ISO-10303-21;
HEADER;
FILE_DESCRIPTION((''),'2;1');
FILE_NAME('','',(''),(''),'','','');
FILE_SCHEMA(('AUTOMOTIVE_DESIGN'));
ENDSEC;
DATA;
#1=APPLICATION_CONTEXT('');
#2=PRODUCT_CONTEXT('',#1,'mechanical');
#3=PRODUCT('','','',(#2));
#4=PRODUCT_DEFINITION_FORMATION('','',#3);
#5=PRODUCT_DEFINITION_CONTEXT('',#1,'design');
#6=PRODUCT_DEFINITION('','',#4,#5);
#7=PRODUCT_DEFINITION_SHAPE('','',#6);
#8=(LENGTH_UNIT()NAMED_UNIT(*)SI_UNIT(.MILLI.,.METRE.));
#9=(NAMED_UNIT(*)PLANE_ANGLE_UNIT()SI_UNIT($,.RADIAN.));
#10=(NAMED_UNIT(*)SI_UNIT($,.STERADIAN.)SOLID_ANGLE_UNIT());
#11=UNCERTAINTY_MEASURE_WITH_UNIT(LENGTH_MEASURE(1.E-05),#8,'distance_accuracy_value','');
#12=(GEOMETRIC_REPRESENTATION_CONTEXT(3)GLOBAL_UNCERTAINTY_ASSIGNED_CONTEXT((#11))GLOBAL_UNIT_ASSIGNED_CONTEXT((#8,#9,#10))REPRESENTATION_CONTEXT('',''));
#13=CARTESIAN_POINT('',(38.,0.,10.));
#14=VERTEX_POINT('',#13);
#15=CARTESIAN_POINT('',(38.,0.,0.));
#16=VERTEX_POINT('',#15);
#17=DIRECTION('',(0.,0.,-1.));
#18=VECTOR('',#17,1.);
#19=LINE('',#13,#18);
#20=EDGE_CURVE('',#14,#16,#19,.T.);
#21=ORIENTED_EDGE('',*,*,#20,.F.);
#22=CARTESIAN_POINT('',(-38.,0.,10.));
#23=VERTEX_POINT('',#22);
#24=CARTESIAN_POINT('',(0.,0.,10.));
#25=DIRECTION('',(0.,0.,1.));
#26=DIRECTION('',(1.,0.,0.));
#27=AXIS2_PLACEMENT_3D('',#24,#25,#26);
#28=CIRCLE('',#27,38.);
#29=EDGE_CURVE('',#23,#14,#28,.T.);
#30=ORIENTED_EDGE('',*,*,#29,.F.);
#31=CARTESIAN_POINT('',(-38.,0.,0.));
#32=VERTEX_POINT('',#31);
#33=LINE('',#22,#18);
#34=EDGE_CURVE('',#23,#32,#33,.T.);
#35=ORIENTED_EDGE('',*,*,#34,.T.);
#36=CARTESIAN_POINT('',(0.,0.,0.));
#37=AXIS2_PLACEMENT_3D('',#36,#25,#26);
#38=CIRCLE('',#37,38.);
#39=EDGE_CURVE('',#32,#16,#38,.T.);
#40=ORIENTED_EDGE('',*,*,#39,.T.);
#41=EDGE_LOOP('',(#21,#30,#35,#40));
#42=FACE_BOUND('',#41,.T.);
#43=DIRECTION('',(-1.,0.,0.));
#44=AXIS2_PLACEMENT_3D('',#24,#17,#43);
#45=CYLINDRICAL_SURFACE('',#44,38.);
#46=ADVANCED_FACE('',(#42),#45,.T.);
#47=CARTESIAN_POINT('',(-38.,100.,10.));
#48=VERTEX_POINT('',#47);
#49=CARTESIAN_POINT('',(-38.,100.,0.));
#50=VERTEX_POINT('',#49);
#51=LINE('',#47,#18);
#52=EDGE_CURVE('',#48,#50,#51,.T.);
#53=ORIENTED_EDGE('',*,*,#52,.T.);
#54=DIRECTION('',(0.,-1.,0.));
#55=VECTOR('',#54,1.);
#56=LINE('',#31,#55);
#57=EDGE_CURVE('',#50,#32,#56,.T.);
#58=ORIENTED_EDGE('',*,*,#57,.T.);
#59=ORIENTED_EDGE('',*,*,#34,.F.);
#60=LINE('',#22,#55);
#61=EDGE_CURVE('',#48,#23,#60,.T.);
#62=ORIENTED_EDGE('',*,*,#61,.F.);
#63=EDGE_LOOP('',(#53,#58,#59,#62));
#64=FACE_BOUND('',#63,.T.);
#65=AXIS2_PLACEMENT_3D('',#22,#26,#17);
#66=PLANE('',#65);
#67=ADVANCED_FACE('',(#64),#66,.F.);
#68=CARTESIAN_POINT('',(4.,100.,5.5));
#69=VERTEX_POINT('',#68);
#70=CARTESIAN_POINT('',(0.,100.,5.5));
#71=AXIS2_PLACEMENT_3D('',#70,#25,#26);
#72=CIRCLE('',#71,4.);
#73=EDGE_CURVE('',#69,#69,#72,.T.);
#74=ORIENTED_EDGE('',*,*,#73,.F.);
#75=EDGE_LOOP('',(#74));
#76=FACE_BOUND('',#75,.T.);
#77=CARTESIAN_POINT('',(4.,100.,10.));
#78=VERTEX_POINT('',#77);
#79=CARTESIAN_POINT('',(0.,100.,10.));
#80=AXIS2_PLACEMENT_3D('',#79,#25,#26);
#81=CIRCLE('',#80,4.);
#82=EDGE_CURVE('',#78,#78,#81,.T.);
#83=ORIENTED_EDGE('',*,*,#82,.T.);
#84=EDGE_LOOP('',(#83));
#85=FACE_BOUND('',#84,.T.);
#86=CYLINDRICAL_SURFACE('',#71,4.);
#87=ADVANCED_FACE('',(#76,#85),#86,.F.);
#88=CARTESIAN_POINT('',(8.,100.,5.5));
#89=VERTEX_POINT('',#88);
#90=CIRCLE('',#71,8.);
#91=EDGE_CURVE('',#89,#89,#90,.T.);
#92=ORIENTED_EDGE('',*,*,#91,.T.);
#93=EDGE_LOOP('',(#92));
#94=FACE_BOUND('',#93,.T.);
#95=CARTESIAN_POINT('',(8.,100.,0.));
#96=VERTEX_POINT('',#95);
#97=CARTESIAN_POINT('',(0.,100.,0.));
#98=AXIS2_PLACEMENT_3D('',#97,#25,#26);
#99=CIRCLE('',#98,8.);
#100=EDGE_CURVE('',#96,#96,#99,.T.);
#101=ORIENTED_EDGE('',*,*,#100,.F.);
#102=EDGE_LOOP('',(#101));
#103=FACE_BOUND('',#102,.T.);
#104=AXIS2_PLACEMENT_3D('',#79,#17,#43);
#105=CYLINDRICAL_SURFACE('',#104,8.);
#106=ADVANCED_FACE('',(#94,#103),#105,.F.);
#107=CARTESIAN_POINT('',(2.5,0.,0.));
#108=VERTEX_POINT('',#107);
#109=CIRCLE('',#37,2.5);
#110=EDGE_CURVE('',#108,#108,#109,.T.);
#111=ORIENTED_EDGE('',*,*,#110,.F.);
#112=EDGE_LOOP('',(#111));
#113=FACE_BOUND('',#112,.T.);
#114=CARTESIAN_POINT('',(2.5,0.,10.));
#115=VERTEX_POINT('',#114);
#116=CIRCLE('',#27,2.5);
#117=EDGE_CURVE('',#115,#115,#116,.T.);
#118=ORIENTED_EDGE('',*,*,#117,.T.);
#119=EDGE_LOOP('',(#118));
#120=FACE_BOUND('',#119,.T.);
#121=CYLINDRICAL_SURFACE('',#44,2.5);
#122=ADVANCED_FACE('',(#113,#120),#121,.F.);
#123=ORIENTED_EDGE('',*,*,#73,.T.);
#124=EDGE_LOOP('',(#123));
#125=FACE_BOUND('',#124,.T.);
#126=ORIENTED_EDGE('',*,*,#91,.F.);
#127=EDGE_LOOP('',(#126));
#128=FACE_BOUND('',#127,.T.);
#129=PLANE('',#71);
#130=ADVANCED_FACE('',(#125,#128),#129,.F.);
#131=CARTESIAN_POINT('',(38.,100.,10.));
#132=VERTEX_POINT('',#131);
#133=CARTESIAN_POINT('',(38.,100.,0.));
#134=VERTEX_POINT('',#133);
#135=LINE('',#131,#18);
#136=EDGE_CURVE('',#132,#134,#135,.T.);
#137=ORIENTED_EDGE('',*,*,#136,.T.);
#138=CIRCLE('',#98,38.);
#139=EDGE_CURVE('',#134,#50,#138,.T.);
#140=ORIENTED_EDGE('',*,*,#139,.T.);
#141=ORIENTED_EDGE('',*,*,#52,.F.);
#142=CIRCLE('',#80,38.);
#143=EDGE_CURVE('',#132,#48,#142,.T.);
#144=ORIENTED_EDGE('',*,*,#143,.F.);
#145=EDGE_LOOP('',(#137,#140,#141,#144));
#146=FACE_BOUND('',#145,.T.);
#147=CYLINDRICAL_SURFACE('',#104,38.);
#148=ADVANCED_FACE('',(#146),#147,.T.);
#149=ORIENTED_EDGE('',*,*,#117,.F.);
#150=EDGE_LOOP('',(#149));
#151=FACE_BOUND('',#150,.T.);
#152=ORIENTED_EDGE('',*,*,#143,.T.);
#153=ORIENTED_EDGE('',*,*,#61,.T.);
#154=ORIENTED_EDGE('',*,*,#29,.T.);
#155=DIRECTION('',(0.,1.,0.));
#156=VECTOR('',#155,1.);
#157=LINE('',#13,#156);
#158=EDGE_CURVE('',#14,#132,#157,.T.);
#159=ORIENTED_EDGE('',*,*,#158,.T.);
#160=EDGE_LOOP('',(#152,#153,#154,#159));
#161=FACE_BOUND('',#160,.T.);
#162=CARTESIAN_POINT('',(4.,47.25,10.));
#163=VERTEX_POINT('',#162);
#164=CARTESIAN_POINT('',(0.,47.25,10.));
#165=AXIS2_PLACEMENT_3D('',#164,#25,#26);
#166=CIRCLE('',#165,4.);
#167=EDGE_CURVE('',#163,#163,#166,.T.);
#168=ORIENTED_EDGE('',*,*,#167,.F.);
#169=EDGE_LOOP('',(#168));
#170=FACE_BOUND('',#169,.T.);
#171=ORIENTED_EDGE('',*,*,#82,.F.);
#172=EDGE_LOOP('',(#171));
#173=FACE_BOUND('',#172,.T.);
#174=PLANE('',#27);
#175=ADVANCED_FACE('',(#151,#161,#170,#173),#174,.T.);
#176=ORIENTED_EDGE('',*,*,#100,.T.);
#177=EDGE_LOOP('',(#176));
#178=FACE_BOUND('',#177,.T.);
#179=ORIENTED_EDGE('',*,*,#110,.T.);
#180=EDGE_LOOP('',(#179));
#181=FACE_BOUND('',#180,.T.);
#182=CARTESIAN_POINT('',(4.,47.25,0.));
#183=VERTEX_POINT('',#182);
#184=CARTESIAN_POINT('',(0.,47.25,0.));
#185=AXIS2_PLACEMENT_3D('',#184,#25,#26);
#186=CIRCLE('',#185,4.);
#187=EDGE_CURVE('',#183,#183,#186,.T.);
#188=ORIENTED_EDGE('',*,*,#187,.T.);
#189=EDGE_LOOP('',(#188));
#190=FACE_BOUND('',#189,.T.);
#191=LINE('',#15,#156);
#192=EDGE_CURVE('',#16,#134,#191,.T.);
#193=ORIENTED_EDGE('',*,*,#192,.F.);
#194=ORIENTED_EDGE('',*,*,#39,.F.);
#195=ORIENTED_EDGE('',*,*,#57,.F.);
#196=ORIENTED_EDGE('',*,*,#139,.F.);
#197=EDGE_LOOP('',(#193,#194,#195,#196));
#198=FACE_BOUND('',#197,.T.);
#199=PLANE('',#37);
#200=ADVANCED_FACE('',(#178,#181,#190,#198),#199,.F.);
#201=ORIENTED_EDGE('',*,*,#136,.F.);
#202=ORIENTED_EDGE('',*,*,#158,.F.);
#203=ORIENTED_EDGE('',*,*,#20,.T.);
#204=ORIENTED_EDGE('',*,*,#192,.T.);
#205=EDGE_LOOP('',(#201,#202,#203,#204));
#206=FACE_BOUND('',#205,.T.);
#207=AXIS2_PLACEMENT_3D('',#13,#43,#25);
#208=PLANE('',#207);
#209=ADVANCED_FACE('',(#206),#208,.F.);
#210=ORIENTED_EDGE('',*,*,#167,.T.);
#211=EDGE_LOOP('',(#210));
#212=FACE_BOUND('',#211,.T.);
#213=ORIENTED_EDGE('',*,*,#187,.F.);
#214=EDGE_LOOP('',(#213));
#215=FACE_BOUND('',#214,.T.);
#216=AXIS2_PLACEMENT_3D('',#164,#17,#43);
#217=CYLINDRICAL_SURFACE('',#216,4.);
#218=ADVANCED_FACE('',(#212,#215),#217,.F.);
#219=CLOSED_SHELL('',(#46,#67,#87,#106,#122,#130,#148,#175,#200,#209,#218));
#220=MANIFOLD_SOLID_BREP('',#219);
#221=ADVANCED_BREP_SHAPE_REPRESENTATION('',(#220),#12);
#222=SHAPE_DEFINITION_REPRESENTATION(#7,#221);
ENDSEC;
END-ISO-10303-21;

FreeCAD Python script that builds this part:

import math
import FreeCAD as App
import Part
import Sketcher

V = App.Vector
Q = App.Units.Quantity

doc = App.newDocument("Part")
body = doc.addObject("PartDesign::Body", "Body")

# Sketch on XY plane
sketch1 = body.newObject("Sketcher::SketchObject", "Sketch")
sketch1.AttachmentSupport = (doc.getObject("XY_Plane"), [""])
sketch1.MapMode = "FlatFace"
sketch1.addGeometry([
    Part.LineSegment(V(-38, 100, 0), V(-38, 0, 0)),  # 0
    Part.ArcOfCircle(Part.Circle(V(0, 0, 0), V(0, 0, 1), 38), math.radians(180), math.radians(360)),  # 1
    Part.LineSegment(V(38, 0, 0), V(38, 100, 0)),  # 2
    Part.ArcOfCircle(Part.Circle(V(0, 100, 0), V(0, 0, 1), 38), math.radians(0), math.radians(180)),  # 3
    Part.Circle(V(0, 0, 0), V(0, 0, 1), 2.5),  # 4
    Part.Circle(V(0, 47.25, 0), V(0, 0, 1), 4),  # 5
    Part.Circle(V(0, 100, 0), V(0, 0, 1), 8),  # 6
], False)
sketch1.addConstraint([
    Sketcher.Constraint("Tangent", 0, 2, 1, 1),
    Sketcher.Constraint("Tangent", 1, 2, 2, 1),
    Sketcher.Constraint("Tangent", 2, 2, 3, 1),
    Sketcher.Constraint("Tangent", 3, 2, 0, 1),
    Sketcher.Constraint("Vertical", 0),
    Sketcher.Constraint("Vertical", 2),
    Sketcher.Constraint("Coincident", 1, 3, -1, 1),
    Sketcher.Constraint("Coincident", 4, 3, -1, 1),
    Sketcher.Constraint("Coincident", 6, 3, 3, 3),
    Sketcher.Constraint("PointOnObject", 5, 3, -2),
    Sketcher.Constraint("Diameter", 4, Q("5 mm")),
    Sketcher.Constraint("Diameter", 5, Q("8 mm")),
    Sketcher.Constraint("Diameter", 6, Q("16 mm")),
    Sketcher.Constraint("Radius", 1, Q("38 mm")),
    Sketcher.Constraint("DistanceY", 0, 2, 0, 1, Q("100 mm")),
    Sketcher.Constraint("DistanceY", -1, 1, 5, 3, Q("47.25 mm")),
])
pad1 = body.newObject("PartDesign::Pad", "Pad")
pad1.Profile = sketch1
pad1.Length = 10

# Sketch on XY plane
sketch2 = body.newObject("Sketcher::SketchObject", "Sketch001")
sketch2.AttachmentSupport = (doc.getObject("XY_Plane"), [""])
sketch2.MapMode = "FlatFace"
sketch2.AttachmentOffset = App.Placement(V(0, 0, 5.5), App.Rotation())
sketch2.addGeometry([
    Part.Circle(V(0, 100, 0), V(0, 0, 1), 8),
    Part.Circle(V(0, 100, 0), V(0, 0, 1), 4),
], False)
sketch2.addConstraint([
    Sketcher.Constraint("Coincident", 1, 3, 0, 3),
    Sketcher.Constraint("PointOnObject", 0, 3, -2),
    Sketcher.Constraint("Diameter", 0, Q("16 mm")),
    Sketcher.Constraint("Diameter", 1, Q("8 mm")),
    Sketcher.Constraint("DistanceY", -1, 1, 0, 3, Q("100 mm")),
])
pad2 = body.newObject("PartDesign::Pad", "Pad001")
pad2.Profile = sketch2
pad2.Length = 4.5

doc.recompute()
